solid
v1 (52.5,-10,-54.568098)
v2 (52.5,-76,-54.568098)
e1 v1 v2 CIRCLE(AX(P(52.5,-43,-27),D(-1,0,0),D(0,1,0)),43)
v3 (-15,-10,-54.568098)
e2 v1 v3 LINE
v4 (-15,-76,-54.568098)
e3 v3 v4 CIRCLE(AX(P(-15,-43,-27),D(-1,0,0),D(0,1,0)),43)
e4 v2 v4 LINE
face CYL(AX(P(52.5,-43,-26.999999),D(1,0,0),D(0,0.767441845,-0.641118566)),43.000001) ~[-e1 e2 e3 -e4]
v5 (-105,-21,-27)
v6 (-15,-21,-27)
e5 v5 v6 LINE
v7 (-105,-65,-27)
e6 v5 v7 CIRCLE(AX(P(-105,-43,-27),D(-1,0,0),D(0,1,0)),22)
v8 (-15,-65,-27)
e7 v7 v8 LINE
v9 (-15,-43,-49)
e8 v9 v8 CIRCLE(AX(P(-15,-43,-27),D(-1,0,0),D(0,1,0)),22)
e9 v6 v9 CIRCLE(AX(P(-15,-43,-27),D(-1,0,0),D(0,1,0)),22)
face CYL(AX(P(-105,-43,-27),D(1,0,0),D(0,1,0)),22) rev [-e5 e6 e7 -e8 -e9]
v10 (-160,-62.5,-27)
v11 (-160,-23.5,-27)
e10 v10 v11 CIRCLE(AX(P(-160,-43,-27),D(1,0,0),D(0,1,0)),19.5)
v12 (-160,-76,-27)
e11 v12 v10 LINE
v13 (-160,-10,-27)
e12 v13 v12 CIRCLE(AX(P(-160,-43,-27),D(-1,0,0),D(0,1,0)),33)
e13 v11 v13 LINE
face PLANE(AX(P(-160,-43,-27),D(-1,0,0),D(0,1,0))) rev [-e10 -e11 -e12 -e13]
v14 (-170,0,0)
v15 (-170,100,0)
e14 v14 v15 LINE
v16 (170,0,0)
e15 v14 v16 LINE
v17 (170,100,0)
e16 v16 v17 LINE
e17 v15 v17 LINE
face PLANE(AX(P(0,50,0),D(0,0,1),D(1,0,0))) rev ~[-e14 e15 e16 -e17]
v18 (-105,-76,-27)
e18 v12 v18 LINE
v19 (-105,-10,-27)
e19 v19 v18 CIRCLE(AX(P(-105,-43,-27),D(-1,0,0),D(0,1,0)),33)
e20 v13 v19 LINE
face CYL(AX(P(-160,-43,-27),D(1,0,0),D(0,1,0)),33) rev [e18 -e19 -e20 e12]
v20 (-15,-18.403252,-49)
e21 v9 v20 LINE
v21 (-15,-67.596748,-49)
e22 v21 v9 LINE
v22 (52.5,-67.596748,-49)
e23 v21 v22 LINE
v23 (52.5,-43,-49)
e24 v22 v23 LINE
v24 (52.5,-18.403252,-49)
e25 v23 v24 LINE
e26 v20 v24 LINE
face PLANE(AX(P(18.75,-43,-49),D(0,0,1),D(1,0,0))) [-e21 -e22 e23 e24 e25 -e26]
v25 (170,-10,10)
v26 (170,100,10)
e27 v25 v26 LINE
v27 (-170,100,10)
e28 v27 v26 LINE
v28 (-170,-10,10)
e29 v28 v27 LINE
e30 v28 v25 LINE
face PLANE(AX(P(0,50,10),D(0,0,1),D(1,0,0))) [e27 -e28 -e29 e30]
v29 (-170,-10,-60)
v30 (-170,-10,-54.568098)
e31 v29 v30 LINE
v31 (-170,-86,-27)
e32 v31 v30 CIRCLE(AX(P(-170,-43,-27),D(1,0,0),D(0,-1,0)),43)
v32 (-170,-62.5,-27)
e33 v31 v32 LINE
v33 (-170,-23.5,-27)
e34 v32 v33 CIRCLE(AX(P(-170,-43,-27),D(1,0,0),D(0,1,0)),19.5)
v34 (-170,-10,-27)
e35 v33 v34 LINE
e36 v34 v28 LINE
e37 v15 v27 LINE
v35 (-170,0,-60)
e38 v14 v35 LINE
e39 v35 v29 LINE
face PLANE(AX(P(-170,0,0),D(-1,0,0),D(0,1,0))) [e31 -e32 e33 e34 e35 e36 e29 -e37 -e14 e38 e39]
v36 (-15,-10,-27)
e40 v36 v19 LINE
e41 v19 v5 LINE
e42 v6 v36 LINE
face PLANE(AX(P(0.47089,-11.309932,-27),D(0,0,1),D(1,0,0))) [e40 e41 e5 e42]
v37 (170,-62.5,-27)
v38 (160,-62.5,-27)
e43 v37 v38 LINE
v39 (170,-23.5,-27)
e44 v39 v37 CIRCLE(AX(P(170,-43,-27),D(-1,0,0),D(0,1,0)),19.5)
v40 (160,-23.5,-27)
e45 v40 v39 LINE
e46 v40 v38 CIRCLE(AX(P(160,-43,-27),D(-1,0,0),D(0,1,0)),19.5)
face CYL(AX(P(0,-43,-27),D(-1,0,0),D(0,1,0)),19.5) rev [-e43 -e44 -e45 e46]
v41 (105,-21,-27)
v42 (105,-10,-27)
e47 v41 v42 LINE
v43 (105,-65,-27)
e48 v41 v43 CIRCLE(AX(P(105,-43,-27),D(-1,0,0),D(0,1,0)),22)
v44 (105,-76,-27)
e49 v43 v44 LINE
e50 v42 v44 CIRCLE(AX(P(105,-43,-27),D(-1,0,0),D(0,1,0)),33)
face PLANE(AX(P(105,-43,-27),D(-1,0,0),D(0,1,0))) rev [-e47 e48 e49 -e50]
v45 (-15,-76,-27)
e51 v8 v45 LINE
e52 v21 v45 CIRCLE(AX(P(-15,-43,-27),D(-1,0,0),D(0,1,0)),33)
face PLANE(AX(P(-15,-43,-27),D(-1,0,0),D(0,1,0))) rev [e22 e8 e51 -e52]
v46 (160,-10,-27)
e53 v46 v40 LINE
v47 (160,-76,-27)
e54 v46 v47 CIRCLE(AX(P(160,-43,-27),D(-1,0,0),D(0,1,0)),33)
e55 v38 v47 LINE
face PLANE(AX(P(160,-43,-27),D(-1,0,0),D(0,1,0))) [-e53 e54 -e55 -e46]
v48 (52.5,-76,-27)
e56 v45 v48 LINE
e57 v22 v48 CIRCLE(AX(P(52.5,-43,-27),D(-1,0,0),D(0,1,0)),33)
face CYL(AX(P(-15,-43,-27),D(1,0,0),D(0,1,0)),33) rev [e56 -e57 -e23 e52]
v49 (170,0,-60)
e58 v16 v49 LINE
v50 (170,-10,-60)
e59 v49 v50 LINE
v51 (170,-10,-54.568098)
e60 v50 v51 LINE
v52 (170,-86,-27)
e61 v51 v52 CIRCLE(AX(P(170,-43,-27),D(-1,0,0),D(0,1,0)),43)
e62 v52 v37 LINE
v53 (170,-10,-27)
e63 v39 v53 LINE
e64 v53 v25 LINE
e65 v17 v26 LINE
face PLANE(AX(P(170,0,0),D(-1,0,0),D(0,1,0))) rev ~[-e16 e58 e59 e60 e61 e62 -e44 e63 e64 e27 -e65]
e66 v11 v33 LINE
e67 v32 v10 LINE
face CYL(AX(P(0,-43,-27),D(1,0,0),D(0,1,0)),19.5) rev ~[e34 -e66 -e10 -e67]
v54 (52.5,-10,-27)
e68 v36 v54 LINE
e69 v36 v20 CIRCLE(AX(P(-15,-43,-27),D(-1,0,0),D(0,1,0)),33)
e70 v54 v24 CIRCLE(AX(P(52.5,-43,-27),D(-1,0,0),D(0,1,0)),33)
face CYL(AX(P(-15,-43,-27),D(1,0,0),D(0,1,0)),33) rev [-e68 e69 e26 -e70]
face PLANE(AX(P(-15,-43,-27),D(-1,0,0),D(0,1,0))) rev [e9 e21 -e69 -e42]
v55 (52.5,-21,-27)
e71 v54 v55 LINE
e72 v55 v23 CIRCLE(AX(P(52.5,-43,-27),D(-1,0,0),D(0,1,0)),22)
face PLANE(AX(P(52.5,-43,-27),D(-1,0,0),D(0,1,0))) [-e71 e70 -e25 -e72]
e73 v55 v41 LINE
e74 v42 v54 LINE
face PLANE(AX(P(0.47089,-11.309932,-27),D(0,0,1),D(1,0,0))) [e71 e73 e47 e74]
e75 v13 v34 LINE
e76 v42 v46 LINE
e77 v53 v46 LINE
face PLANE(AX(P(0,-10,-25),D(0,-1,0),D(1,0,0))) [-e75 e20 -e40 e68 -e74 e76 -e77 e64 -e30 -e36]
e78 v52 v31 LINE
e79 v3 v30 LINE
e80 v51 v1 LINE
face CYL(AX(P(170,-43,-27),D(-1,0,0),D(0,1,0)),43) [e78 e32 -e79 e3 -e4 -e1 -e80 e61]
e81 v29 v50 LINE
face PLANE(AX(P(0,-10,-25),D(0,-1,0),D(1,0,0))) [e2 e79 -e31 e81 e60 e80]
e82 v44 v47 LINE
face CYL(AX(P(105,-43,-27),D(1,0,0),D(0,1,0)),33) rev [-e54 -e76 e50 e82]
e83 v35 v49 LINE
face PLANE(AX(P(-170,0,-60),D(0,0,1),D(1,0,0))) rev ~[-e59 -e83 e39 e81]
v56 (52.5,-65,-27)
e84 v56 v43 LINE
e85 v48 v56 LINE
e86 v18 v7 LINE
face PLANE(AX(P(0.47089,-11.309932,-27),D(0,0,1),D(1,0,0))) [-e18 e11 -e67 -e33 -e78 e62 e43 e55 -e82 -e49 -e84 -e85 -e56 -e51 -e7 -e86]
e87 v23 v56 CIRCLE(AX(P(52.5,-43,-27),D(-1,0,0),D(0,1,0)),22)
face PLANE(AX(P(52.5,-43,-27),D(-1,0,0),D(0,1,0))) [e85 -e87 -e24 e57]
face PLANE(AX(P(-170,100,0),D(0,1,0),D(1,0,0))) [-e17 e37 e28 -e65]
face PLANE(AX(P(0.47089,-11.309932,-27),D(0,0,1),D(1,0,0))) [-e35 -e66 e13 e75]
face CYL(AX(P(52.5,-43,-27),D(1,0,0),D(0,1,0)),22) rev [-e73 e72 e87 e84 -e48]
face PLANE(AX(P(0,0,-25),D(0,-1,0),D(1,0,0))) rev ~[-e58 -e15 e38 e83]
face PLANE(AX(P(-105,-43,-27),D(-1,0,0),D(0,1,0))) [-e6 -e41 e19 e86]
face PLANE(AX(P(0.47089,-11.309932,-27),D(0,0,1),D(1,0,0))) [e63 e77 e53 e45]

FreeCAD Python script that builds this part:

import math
import FreeCAD as App
import Part
import Sketcher

doc = App.newDocument("Part")
params = doc.addObject("Spreadsheet::Sheet", "Params")
for row, (alias, value) in enumerate([
    ("sketch1_width", "340 mm"),
    ("sketch1_height", "70 mm"),
    ("pad1_length", "10 mm"),
    ("sketch2_width", "340 mm"),
    ("sketch2_height", "100 mm"),
    ("pad2_length", "10 mm"),
    ("sketch3_width", "340 mm"),
    ("sketch3_width2", "10 mm"),
    ("sketch3_width3", "55 mm"),
    ("sketch3_width4", "90 mm"),
    ("sketch3_height", "43 mm"),
    ("revolution_angle", "180 deg"),
    ("sketch4_diameter", "39 mm"),
    ("sketch5_diameter", "39 mm"),
    ("sketch6_height", "66 mm"),
    ("sketch6_width", "67.5 mm"),
    ("pad3_length", "25 mm"),
    ("sketch7_radius", "43.000001 mm"),
    ("sketch7_width", "66 mm"),
], start=1):
    params.set(f"A{row}", alias)
    params.set(f"B{row}", "=" + value)
    params.setAlias(f"B{row}", alias)

body = doc.addObject("PartDesign::Body", "Body")

# Sketch on XZ plane
sketch1 = body.newObject("Sketcher::SketchObject", "Sketch")
sketch1.AttachmentSupport = (doc.getObject("XZ_Plane"), [""])
sketch1.MapMode = "FlatFace"
sketch1.addGeometry(Part.LineSegment(App.Vector(-170, 10, 0), App.Vector(-170, -60, 0)), False)
sketch1.addGeometry(Part.LineSegment(App.Vector(-170, -60, 0), App.Vector(170, -60, 0)), False)
sketch1.addGeometry(Part.LineSegment(App.Vector(170, -60, 0), App.Vector(170, 10, 0)), False)
sketch1.addGeometry(Part.LineSegment(App.Vector(170, 10, 0), App.Vector(-170, 10, 0)), False)
sketch1.addConstraint(Sketcher.Constraint("Coincident", 0, 2, 1, 1))
sketch1.addConstraint(Sketcher.Constraint("Coincident", 1, 2, 2, 1))
sketch1.addConstraint(Sketcher.Constraint("Coincident", 2, 2, 3, 1))
sketch1.addConstraint(Sketcher.Constraint("Coincident", 3, 2, 0, 1))
sketch1.addConstraint(Sketcher.Constraint("Vertical", 0))
sketch1.addConstraint(Sketcher.Constraint("Horizontal", 1))
sketch1.addConstraint(Sketcher.Constraint("Vertical", 2))
sketch1.addConstraint(Sketcher.Constraint("Horizontal", 3))
sketch1.addConstraint(Sketcher.Constraint("DistanceX", 1, 1, 1, 2, 340.0))
sketch1.addConstraint(Sketcher.Constraint("DistanceY", 0, 2, 0, 1, 70.0))
sketch1.addConstraint(Sketcher.Constraint("DistanceX", 0, 2, -1, 1, 170.0))
sketch1.addConstraint(Sketcher.Constraint("DistanceY", 0, 2, -1, 1, 60.0))
sketch1.setExpression("Constraints[8]", "Params.sketch1_width")
sketch1.setExpression("Constraints[9]", "Params.sketch1_height")
pad1 = body.newObject("PartDesign::Pad", "Pad")
pad1.Profile = sketch1
pad1.setExpression("Length", "Params.pad1_length")

# Sketch on XY plane
sketch2 = body.newObject("Sketcher::SketchObject", "Sketch001")
sketch2.AttachmentSupport = (doc.getObject("XY_Plane"), [""])
sketch2.MapMode = "FlatFace"
sketch2.addGeometry(Part.LineSegment(App.Vector(-170, 100, 0), App.Vector(-170, 0, 0)), False)
sketch2.addGeometry(Part.LineSegment(App.Vector(-170, 0, 0), App.Vector(170, 0, 0)), False)
sketch2.addGeometry(Part.LineSegment(App.Vector(170, 0, 0), App.Vector(170, 100, 0)), False)
sketch2.addGeometry(Part.LineSegment(App.Vector(170, 100, 0), App.Vector(-170, 100, 0)), False)
sketch2.addConstraint(Sketcher.Constraint("Coincident", 0, 2, 1, 1))
sketch2.addConstraint(Sketcher.Constraint("Coincident", 1, 2, 2, 1))
sketch2.addConstraint(Sketcher.Constraint("Coincident", 2, 2, 3, 1))
sketch2.addConstraint(Sketcher.Constraint("Coincident", 3, 2, 0, 1))
sketch2.addConstraint(Sketcher.Constraint("Vertical", 0))
sketch2.addConstraint(Sketcher.Constraint("Horizontal", 1))
sketch2.addConstraint(Sketcher.Constraint("Vertical", 2))
sketch2.addConstraint(Sketcher.Constraint("Horizontal", 3))
sketch2.addConstraint(Sketcher.Constraint("Symmetric", 0, 2, 1, 2, -1, 1))
sketch2.addConstraint(Sketcher.Constraint("DistanceX", 1, 1, 1, 2, 340.0))
sketch2.addConstraint(Sketcher.Constraint("DistanceY", 0, 2, 0, 1, 100.0))
sketch2.setExpression("Constraints[9]", "Params.sketch2_width")
sketch2.setExpression("Constraints[10]", "Params.sketch2_height")
pad2 = body.newObject("PartDesign::Pad", "Pad001")
pad2.Profile = sketch2
pad2.setExpression("Length", "Params.pad2_length")

# Sketch on XY plane
sketch3 = body.newObject("Sketcher::SketchObject", "Sketch002")
sketch3.AttachmentSupport = (doc.getObject("XY_Plane"), [""])
sketch3.MapMode = "FlatFace"
sketch3.AttachmentOffset = App.Placement(App.Vector(0, 0, -27), App.Rotation())
sketch3.addGeometry(Part.LineSegment(App.Vector(170, 0, 0), App.Vector(-170, 0, 0)), False)
sketch3.addGeometry(Part.LineSegment(App.Vector(-170, 0, 0), App.Vector(-170, -43, 0)), False)
sketch3.addGeometry(Part.LineSegment(App.Vector(-170, -43, 0), App.Vector(-160, -43, 0)), False)
sketch3.addGeometry(Part.LineSegment(App.Vector(-160, -43, 0), App.Vector(-160, -10, 0)), False)
sketch3.addGeometry(Part.LineSegment(App.Vector(-160, -10, 0), App.Vector(-105, -10, 0)), False)
sketch3.addGeometry(Part.LineSegment(App.Vector(-105, -10, 0), App.Vector(-105, -21, 0)), False)
sketch3.addGeometry(Part.LineSegment(App.Vector(-105, -21, 0), App.Vector(-15, -21, 0)), False)
sketch3.addGeometry(Part.LineSegment(App.Vector(-15, -21, 0), App.Vector(-15, -10, 0)), False)
sketch3.addGeometry(Part.LineSegment(App.Vector(-15, -10, 0), App.Vector(52, -10, 0)), False)
sketch3.addGeometry(Part.LineSegment(App.Vector(52, -10, 0), App.Vector(52, -21, 0)), False)
sketch3.addGeometry(Part.LineSegment(App.Vector(52, -21, 0), App.Vector(105, -21, 0)), False)
sketch3.addGeometry(Part.LineSegment(App.Vector(105, -21, 0), App.Vector(105, -10, 0)), False)
sketch3.addGeometry(Part.LineSegment(App.Vector(105, -10, 0), App.Vector(160, -10, 0)), False)
sketch3.addGeometry(Part.LineSegment(App.Vector(160, -10, 0), App.Vector(160, -43, 0)), False)
sketch3.addGeometry(Part.LineSegment(App.Vector(160, -43, 0), App.Vector(170, -43, 0)), False)
sketch3.addGeometry(Part.LineSegment(App.Vector(170, -43, 0), App.Vector(170, 0, 0)), False)
sketch3.addGeometry(Part.LineSegment(App.Vector(170, -43, 0), App.Vector(-170, -43, 0)), True)  # axis
sketch3.addConstraint(Sketcher.Constraint("Coincident", 0, 2, 1, 1))
sketch3.addConstraint(Sketcher.Constraint("Coincident", 1, 2, 2, 1))
sketch3.addConstraint(Sketcher.Constraint("Coincident", 2, 2, 3, 1))
sketch3.addConstraint(Sketcher.Constraint("Coincident", 3, 2, 4, 1))
sketch3.addConstraint(Sketcher.Constraint("Coincident", 4, 2, 5, 1))
sketch3.addConstraint(Sketcher.Constraint("Coincident", 5, 2, 6, 1))
sketch3.addConstraint(Sketcher.Constraint("Coincident", 6, 2, 7, 1))
sketch3.addConstraint(Sketcher.Constraint("Coincident", 7, 2, 8, 1))
sketch3.addConstraint(Sketcher.Constraint("Coincident", 8, 2, 9, 1))
sketch3.addConstraint(Sketcher.Constraint("Coincident", 9, 2, 10, 1))
sketch3.addConstraint(Sketcher.Constraint("Coincident", 10, 2, 11, 1))
sketch3.addConstraint(Sketcher.Constraint("Coincident", 11, 2, 12, 1))
sketch3.addConstraint(Sketcher.Constraint("Coincident", 12, 2, 13, 1))
sketch3.addConstraint(Sketcher.Constraint("Coincident", 13, 2, 14, 1))
sketch3.addConstraint(Sketcher.Constraint("Coincident", 14, 2, 15, 1))
sketch3.addConstraint(Sketcher.Constraint("Coincident", 15, 2, 0, 1))
sketch3.addConstraint(Sketcher.Constraint("Horizontal", 0))
sketch3.addConstraint(Sketcher.Constraint("Vertical", 1))
sketch3.addConstraint(Sketcher.Constraint("Horizontal", 2))
sketch3.addConstraint(Sketcher.Constraint("Vertical", 3))
sketch3.addConstraint(Sketcher.Constraint("Horizontal", 4))
sketch3.addConstraint(Sketcher.Constraint("Vertical", 5))
sketch3.addConstraint(Sketcher.Constraint("Horizontal", 6))
sketch3.addConstraint(Sketcher.Constraint("Vertical", 7))
sketch3.addConstraint(Sketcher.Constraint("Horizontal", 8))
sketch3.addConstraint(Sketcher.Constraint("Vertical", 9))
sketch3.addConstraint(Sketcher.Constraint("Horizontal", 10))
sketch3.addConstraint(Sketcher.Constraint("Vertical", 11))
sketch3.addConstraint(Sketcher.Constraint("Horizontal", 12))
sketch3.addConstraint(Sketcher.Constraint("Vertical", 13))
sketch3.addConstraint(Sketcher.Constraint("Horizontal", 14))
sketch3.addConstraint(Sketcher.Constraint("Vertical", 15))
sketch3.addConstraint(Sketcher.Constraint("Horizontal", 16))
sketch3.addConstraint(Sketcher.Constraint("Coincident", 16, 1, 14, 2))
sketch3.addConstraint(Sketcher.Constraint("Coincident", 16, 2, 1, 2))
sketch3.addConstraint(Sketcher.Constraint("Symmetric", 0, 2, 15, 2, -1, 1))
sketch3.addConstraint(Sketcher.Constraint("Symmetric", 5, 2, 10, 2, -2))
sketch3.addConstraint(Sketcher.Constraint("Symmetric", 3, 2, 12, 2, -2))
sketch3.addConstraint(Sketcher.Constraint("Horizontal", 4, 2, 7, 2))
sketch3.addConstraint(Sketcher.Constraint("DistanceX", 0, 2, 0, 1, 340.0))
sketch3.addConstraint(Sketcher.Constraint("DistanceX", 2, 1, 2, 2, 10.0))
sketch3.addConstraint(Sketcher.Constraint("DistanceX", 4, 1, 4, 2, 55.0))
sketch3.addConstraint(Sketcher.Constraint("DistanceX", 6, 1, 6, 2, 90.0))
sketch3.addConstraint(Sketcher.Constraint("DistanceY", 1, 2, 1, 1, 43.0))
sketch3.addConstraint(Sketcher.Constraint("DistanceY", 3, 1, 3, 2, 33.0))
sketch3.addConstraint(Sketcher.Constraint("DistanceY", 5, 2, 5, 1, 11.0))
sketch3.addConstraint(Sketcher.Constraint("DistanceX", 8, 1, 8, 2, 67.5))
sketch3.setExpression("Constraints[39]", "Params.sketch3_width")
sketch3.setExpression("Constraints[40]", "Params.sketch3_width2")
sketch3.setExpression("Constraints[41]", "Params.sketch3_width3")
sketch3.setExpression("Constraints[42]", "Params.sketch3_width4")
sketch3.setExpression("Constraints[43]", "Params.sketch3_height")
revolution = body.newObject("PartDesign::Revolution", "Revolution")
revolution.Profile = sketch3
revolution.ReferenceAxis = (sketch3, ["Axis0"])
revolution.setExpression("Angle", "Params.revolution_angle")

# Sketch on YZ plane
sketch4 = body.newObject("Sketcher::SketchObject", "Sketch003")
sketch4.AttachmentSupport = (doc.getObject("YZ_Plane"), [""])
sketch4.MapMode = "FlatFace"
sketch4.addGeometry(Part.Circle(App.Vector(-43, -27, 0), App.Vector(0, 0, 1), 20), False)
sketch4.addConstraint(Sketcher.Constraint("Diameter", 0, 39.0))
sketch4.addConstraint(Sketcher.Constraint("DistanceX", 0, 3, -1, 1, 43.0))
sketch4.addConstraint(Sketcher.Constraint("DistanceY", 0, 3, -1, 1, 27.0))
sketch4.setExpression("Constraints[0]", "Params.sketch4_diameter")
pocket1 = body.newObject("PartDesign::Pocket", "Pocket")
pocket1.Profile = sketch4
pocket1.Type = "ThroughAll"
pocket1.Reversed = True

# Sketch on YZ plane
sketch5 = body.newObject("Sketcher::SketchObject", "Sketch004")
sketch5.AttachmentSupport = (doc.getObject("YZ_Plane"), [""])
sketch5.MapMode = "FlatFace"
sketch5.addGeometry(Part.Circle(App.Vector(-43, -27, 0), App.Vector(0, 0, 1), 20), False)
sketch5.addConstraint(Sketcher.Constraint("Diameter", 0, 39.0))
sketch5.addConstraint(Sketcher.Constraint("DistanceX", 0, 3, -1, 1, 43.0))
sketch5.addConstraint(Sketcher.Constraint("DistanceY", 0, 3, -1, 1, 27.0))
sketch5.setExpression("Constraints[0]", "Params.sketch5_diameter")
pocket2 = body.newObject("PartDesign::Pocket", "Pocket001")
pocket2.Profile = sketch5
pocket2.Type = "ThroughAll"

# Sketch on XY plane
sketch6 = body.newObject("Sketcher::SketchObject", "Sketch005")
sketch6.AttachmentSupport = (doc.getObject("XY_Plane"), [""])
sketch6.MapMode = "FlatFace"
sketch6.AttachmentOffset = App.Placement(App.Vector(0, 0, -49), App.Rotation())
sketch6.addGeometry(Part.LineSegment(App.Vector(-15, -10, 0), App.Vector(-15, -76, 0)), False)
sketch6.addGeometry(Part.LineSegment(App.Vector(-15, -76, 0), App.Vector(52, -76, 0)), False)
sketch6.addGeometry(Part.LineSegment(App.Vector(52, -76, 0), App.Vector(52, -10, 0)), False)
sketch6.addGeometry(Part.LineSegment(App.Vector(52, -10, 0), App.Vector(-15, -10, 0)), False)
sketch6.addConstraint(Sketcher.Constraint("Coincident", 0, 2, 1, 1))
sketch6.addConstraint(Sketcher.Constraint("Coincident", 1, 2, 2, 1))
sketch6.addConstraint(Sketcher.Constraint("Coincident", 2, 2, 3, 1))
sketch6.addConstraint(Sketcher.Constraint("Coincident", 3, 2, 0, 1))
sketch6.addConstraint(Sketcher.Constraint("Vertical", 0))
sketch6.addConstraint(Sketcher.Constraint("Horizontal", 1))
sketch6.addConstraint(Sketcher.Constraint("Vertical", 2))
sketch6.addConstraint(Sketcher.Constraint("Horizontal", 3))
sketch6.addConstraint(Sketcher.Constraint("DistanceY", 0, 2, 0, 1, 66.0))
sketch6.addConstraint(Sketcher.Constraint("DistanceX", 1, 1, 1, 2, 67.5))
sketch6.addConstraint(Sketcher.Constraint("DistanceX", 0, 2, -1, 1, 15.0))
sketch6.addConstraint(Sketcher.Constraint("DistanceY", 0, 2, -1, 1, 76.0))
sketch6.setExpression("Constraints[8]", "Params.sketch6_height")
sketch6.setExpression("Constraints[9]", "Params.sketch6_width")
pad3 = body.newObject("PartDesign::Pad", "Pad002")
pad3.Profile = sketch6
pad3.setExpression("Length", "Params.pad3_length")
pad3.Reversed = True

# Sketch on YZ plane
sketch7 = body.newObject("Sketcher::SketchObject", "Sketch006")
sketch7.AttachmentSupport = (doc.getObject("YZ_Plane"), [""])
sketch7.MapMode = "FlatFace"
sketch7.AttachmentOffset = App.Placement(App.Vector(0, 0, 52.5), App.Rotation())
sketch7.addGeometry(Part.ArcOfCircle(Part.Circle(App.Vector(-43, -27, 0), App.Vector(0, 0, 1), 43), math.radians(-140), math.radians(-40)), False)
sketch7.addGeometry(Part.LineSegment(App.Vector(-76, -55, 0), App.Vector(-76, -74, 0)), False)
sketch7.addGeometry(Part.LineSegment(App.Vector(-76, -74, 0), App.Vector(-10, -74, 0)), False)
sketch7.addGeometry(Part.LineSegment(App.Vector(-10, -74, 0), App.Vector(-10, -55, 0)), False)
sketch7.addConstraint(Sketcher.Constraint("Coincident", 0, 1, 1, 1))
sketch7.addConstraint(Sketcher.Constraint("Coincident", 1, 2, 2, 1))
sketch7.addConstraint(Sketcher.Constraint("Coincident", 2, 2, 3, 1))
sketch7.addConstraint(Sketcher.Constraint("Coincident", 3, 2, 0, 2))
sketch7.addConstraint(Sketcher.Constraint("Vertical", 1))
sketch7.addConstraint(Sketcher.Constraint("Horizontal", 2))
sketch7.addConstraint(Sketcher.Constraint("Vertical", 3))
sketch7.addConstraint(Sketcher.Constraint("Horizontal", 0, 1, 3, 2))
sketch7.addConstraint(Sketcher.Constraint("Radius", 0, 43.000001))
sketch7.addConstraint(Sketcher.Constraint("DistanceX", 2, 1, 2, 2, 66.0))
sketch7.addConstraint(Sketcher.Constraint("DistanceX", 0, 3, -1, 1, 43.0))
sketch7.addConstraint(Sketcher.Constraint("DistanceY", 0, 3, -1, 1, 26.999999))
sketch7.addConstraint(Sketcher.Constraint("DistanceY", 1, 2, -1, 1, 74.0))
sketch7.setExpression("Constraints[8]", "Params.sketch7_radius")
sketch7.setExpression("Constraints[9]", "Params.sketch7_width")
pocket3 = body.newObject("PartDesign::Pocket", "Pocket002")
pocket3.Profile = sketch7
pocket3.Type = "ThroughAll"

doc.recompute()
